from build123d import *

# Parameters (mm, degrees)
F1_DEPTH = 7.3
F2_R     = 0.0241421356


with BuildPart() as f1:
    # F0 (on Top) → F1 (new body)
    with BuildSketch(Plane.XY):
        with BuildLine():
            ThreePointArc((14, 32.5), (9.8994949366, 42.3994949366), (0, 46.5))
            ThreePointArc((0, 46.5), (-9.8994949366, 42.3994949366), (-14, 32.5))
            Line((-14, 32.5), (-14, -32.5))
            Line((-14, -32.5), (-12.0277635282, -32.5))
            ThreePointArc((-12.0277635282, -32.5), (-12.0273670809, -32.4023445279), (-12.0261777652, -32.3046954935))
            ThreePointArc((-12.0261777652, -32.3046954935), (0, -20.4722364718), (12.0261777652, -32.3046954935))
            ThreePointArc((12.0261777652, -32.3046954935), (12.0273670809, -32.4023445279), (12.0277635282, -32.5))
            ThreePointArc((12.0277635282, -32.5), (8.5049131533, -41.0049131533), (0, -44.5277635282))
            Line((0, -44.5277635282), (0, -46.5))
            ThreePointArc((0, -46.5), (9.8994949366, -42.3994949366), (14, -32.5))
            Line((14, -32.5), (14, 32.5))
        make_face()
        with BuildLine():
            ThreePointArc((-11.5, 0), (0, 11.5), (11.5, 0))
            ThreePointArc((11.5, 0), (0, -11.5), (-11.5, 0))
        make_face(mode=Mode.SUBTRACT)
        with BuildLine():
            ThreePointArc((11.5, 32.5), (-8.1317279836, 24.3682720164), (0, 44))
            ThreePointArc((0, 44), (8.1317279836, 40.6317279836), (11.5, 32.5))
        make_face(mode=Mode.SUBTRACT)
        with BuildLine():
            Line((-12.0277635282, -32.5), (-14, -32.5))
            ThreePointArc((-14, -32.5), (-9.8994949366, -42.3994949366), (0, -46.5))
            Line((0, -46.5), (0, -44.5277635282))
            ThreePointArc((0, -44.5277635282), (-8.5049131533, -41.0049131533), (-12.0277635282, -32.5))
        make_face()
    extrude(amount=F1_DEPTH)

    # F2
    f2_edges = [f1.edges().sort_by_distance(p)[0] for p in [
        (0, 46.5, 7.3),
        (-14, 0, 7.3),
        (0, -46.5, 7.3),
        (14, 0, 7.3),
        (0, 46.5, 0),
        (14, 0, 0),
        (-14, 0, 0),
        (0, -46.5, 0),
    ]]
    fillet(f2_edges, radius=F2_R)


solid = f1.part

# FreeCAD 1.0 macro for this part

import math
import FreeCAD as App
import Part
import Sketcher
from FreeCAD import Vector


def edges_at(feature, points):
    """Names of the edges that pass closest to the given points."""
    edges = feature.Shape.Edges
    near = lambda p: min(range(len(edges)), key=lambda i: edges[i].distToShape(Part.Vertex(*p))[0])
    return sorted({f"Edge{near(p) + 1}" for p in points})

doc = App.newDocument("Part")
body = doc.addObject("PartDesign::Body", "Body")

# Sketch on XY plane
sketch1 = doc.addObject("Sketcher::SketchObject", "Sketch")
body.addObject(sketch1)
sketch1.AttachmentSupport = (doc.XY_Plane, [""])
sketch1.MapMode = "FlatFace"
sketch1.addGeometry([
    Part.ArcOfCircle(Part.Circle(Vector(0, 32.5, 0), Vector(0, 0, 1), 14), math.radians(0), math.radians(90)),  # 0
    Part.ArcOfCircle(Part.Circle(Vector(0, 32.5, 0), Vector(0, 0, 1), 14), math.radians(90), math.radians(180)),  # 1
    Part.LineSegment(Vector(-14, 32.5, 0), Vector(-14, -32.5, 0)),  # 2
    Part.ArcOfCircle(Part.Circle(Vector(0, -32.5, 0), Vector(0, 0, 1), 14), math.radians(180), math.radians(270)),  # 3
    Part.ArcOfCircle(Part.Circle(Vector(0, -32.5, 0), Vector(0, 0, 1), 14), math.radians(-90), math.radians(0)),  # 4
    Part.LineSegment(Vector(14, -32.5, 0), Vector(14, 32.5, 0)),  # 5
    Part.ArcOfCircle(Part.Circle(Vector(0, -32.5, 0), Vector(0, 0, 1), 12.03), math.radians(180), math.radians(360)),  # 6
    Part.ArcOfCircle(Part.Circle(Vector(0, -32.5, 0), Vector(0, 0, 1), 12.03), math.radians(179.07), math.radians(180)),  # 7
    Part.ArcOfCircle(Part.Circle(Vector(0, -32.5, 0), Vector(0, 0, 1), 12.03), math.radians(1), math.radians(179)),  # 8
    Part.ArcOfCircle(Part.Circle(Vector(0, -32.5, 0), Vector(0, 0, 1), 12.03), math.radians(0), math.radians(0.93)),  # 9
    Part.Circle(Vector(0, 0, 0), Vector(0, 0, 1), 11.5),  # 10
    Part.ArcOfCircle(Part.Circle(Vector(0, 32.5, 0), Vector(0, 0, 1), 11.5), math.radians(0), math.radians(90)),  # 11
    Part.ArcOfCircle(Part.Circle(Vector(0, 32.5, 0), Vector(0, 0, 1), 11.5), math.radians(90), math.radians(360)),  # 12
], False)
sketch1.addConstraint([
    Sketcher.Constraint("Tangent", 0, 2, 1, 1),
    Sketcher.Constraint("Tangent", 1, 2, 2, 1),
    Sketcher.Constraint("Tangent", 2, 2, 3, 1),
    Sketcher.Constraint("Tangent", 3, 2, 4, 1),
    Sketcher.Constraint("Tangent", 4, 2, 5, 1),
    Sketcher.Constraint("Tangent", 5, 2, 0, 1),
    Sketcher.Constraint("Tangent", 6, 1, 7, 2),
    Sketcher.Constraint("Tangent", 7, 1, 8, 2),
    Sketcher.Constraint("Tangent", 8, 1, 9, 2),
    Sketcher.Constraint("Coincident", 9, 1, 6, 2),
    Sketcher.Constraint("Tangent", 11, 1, 12, 2),
    Sketcher.Constraint("Coincident", 12, 1, 11, 2),
    Sketcher.Constraint("Vertical", 2),
    Sketcher.Constraint("Vertical", 5),
    Sketcher.Constraint("Coincident", 10, 3, -1, 1),
    Sketcher.Constraint("Coincident", 6, 3, 3, 3),
    Sketcher.Constraint("Coincident", 9, 3, 3, 3),
    Sketcher.Constraint("Coincident", 11, 3, 0, 3),
    Sketcher.Constraint("Equal", 0, 1),
    Sketcher.Constraint("Equal", 1, 3),
    Sketcher.Constraint("Equal", 10, 11),
    Sketcher.Constraint("Symmetric", 0, 3, 3, 3, -1, 1),
    Sketcher.Constraint("PointOnObject", 0, 2, -2),
    Sketcher.Constraint("PointOnObject", 3, 2, -2),
    Sketcher.Constraint("PointOnObject", 12, 1, -2),
    Sketcher.Constraint("Horizontal", 4, 2, 6, 1),
    Sketcher.Constraint("Horizontal", 7, 1, 8, 1),
    Sketcher.Constraint("Horizontal", 6, 1, 9, 1),
    Sketcher.Constraint("Horizontal", 5, 2, 11, 1),
    Sketcher.Constraint("Diameter", 10, 23.0),
    Sketcher.Constraint("Radius", 0, 14.0),
    Sketcher.Constraint("DistanceY", 2, 2, 2, 1, 65.0),
    Sketcher.Constraint("Radius", 6, 12.027764),
    Sketcher.Constraint("DistanceX", 7, 1, -1, 1, 12.026178),
])
pad1 = doc.addObject("PartDesign::Pad", "Pad")
body.addObject(pad1)
pad1.Profile = sketch1
pad1.Length = 7.3
doc.recompute()

fillet = doc.addObject("PartDesign::Fillet", "Fillet")
body.addObject(fillet)
fillet.Base = (pad1, edges_at(pad1, [
    (0, 46.5, 3.65),
    (-14, 0, 7.3),
    (0, -46.5, 3.65),
    (14, 0, 7.3),
    (0, 46.5, 3.65),
    (14, 0, 0),
    (-14, 0, 0),
    (0, -46.5, 3.65),
]))
fillet.Radius = 0.024142

doc.recompute()
